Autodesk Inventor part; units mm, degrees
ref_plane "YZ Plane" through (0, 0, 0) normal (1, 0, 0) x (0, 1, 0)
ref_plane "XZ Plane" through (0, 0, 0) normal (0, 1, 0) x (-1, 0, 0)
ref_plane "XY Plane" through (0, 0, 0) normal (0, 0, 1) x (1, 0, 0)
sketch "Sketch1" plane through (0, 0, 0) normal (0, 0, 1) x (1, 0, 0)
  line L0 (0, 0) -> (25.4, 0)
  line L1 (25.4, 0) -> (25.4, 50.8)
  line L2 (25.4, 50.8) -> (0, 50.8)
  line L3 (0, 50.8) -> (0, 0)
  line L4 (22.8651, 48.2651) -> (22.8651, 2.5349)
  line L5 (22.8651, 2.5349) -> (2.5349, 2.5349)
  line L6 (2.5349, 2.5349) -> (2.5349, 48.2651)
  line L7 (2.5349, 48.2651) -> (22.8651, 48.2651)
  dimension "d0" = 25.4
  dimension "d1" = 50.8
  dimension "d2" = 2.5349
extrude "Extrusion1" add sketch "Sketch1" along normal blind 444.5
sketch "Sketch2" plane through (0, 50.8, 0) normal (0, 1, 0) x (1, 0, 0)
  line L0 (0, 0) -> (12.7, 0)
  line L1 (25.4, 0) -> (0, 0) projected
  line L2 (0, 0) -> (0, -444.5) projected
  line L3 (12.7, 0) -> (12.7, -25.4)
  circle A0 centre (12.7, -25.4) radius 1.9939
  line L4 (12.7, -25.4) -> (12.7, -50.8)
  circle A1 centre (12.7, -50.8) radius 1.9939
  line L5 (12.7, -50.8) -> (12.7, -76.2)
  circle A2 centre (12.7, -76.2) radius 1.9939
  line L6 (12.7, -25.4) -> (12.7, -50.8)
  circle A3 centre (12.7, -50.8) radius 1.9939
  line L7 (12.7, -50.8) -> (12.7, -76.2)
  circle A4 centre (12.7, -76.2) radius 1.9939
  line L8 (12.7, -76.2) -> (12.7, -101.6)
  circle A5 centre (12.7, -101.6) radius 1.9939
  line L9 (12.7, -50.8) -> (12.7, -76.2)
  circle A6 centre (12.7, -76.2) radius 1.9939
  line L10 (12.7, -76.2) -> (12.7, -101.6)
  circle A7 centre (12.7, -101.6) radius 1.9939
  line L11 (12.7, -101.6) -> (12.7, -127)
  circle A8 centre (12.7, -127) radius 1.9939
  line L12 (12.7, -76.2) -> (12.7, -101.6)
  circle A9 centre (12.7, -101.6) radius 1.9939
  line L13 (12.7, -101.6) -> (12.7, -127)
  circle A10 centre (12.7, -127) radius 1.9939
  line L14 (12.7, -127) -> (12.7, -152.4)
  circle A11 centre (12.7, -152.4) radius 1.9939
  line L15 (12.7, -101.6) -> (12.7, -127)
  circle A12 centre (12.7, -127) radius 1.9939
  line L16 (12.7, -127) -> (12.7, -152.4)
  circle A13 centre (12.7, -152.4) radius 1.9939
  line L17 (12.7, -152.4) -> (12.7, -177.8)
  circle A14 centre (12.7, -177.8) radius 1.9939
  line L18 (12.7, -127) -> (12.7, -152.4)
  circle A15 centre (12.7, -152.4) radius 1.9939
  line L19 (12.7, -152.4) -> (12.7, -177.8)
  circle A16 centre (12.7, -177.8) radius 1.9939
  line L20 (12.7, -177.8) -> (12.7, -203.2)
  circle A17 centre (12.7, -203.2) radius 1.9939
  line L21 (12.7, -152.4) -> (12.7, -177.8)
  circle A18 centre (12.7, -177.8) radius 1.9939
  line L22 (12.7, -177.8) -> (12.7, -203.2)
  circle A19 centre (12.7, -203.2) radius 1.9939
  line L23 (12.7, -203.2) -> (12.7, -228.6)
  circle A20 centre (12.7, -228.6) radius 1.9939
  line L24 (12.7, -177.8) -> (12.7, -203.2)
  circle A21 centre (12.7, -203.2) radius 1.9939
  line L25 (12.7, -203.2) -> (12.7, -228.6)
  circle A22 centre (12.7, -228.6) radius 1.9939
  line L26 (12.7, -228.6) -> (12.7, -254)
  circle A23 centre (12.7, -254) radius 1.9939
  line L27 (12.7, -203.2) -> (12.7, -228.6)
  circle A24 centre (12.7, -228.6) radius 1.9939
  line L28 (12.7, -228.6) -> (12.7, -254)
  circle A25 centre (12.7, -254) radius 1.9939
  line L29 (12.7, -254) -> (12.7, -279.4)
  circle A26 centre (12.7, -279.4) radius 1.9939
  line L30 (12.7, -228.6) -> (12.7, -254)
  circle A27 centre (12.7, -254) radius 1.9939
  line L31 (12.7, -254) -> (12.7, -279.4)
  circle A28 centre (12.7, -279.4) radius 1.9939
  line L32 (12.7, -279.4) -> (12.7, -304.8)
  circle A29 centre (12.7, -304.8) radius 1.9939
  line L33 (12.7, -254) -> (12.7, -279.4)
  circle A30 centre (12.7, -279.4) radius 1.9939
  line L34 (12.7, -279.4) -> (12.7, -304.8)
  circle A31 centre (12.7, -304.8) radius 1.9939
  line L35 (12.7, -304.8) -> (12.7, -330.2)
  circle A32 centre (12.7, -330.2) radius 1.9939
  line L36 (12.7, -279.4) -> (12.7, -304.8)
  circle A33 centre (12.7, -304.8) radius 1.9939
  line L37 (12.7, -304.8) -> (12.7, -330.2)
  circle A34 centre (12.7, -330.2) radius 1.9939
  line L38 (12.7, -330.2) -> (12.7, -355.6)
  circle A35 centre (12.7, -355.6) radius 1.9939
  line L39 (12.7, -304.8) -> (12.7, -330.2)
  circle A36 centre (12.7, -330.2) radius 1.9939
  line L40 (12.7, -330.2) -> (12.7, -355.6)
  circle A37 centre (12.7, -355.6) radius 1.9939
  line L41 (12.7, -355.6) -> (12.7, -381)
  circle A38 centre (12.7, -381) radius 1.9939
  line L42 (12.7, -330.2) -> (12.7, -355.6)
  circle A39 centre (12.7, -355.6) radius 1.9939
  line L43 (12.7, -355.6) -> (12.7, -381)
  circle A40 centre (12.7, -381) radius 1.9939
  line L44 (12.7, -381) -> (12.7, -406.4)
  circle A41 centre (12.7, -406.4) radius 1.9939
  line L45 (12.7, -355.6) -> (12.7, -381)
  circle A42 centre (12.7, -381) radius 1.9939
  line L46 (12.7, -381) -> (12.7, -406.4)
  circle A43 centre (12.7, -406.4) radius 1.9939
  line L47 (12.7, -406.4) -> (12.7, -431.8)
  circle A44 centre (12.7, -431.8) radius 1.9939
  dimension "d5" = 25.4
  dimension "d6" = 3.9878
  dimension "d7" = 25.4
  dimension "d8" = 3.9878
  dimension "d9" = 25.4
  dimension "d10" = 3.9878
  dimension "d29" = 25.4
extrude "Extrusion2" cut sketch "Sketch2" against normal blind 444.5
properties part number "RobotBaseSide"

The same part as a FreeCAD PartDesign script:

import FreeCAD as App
import Part
import Sketcher
from FreeCAD import Vector
Q = App.Units.Quantity


def add_polygon(sketch, points):
    """Adds a closed chain of lines whose ends are joined by coincident constraints."""
    first, n = sketch.GeometryCount, len(points)
    for a, b in zip(points, points[1:] + points[:1]):
        sketch.addGeometry(Part.LineSegment(App.Vector(*a, 0), App.Vector(*b, 0)), False)
    for i in range(n):
        sketch.addConstraint(Sketcher.Constraint("Coincident", first + i, 2, first + (i + 1) % n, 1))

doc = App.newDocument("Part")
body = doc.addObject("PartDesign::Body", "Body")

# Sketch on XY plane
sketch1 = body.newObject("Sketcher::SketchObject", "Sketch")
sketch1.AttachmentSupport = (doc.getObject("XY_Plane"), [""])
sketch1.MapMode = "FlatFace"
add_polygon(sketch1, [(0, 51), (0, 0), (25, 0), (25, 51)])  # lines 0-3
add_polygon(sketch1, [(3, 48), (23, 48), (23, 3), (3, 3)])  # lines 4-7
sketch1.addConstraint(Sketcher.Constraint("Vertical", 0))
sketch1.addConstraint(Sketcher.Constraint("Horizontal", 1))
sketch1.addConstraint(Sketcher.Constraint("Vertical", 2))
sketch1.addConstraint(Sketcher.Constraint("Horizontal", 3))
sketch1.addConstraint(Sketcher.Constraint("Horizontal", 4))
sketch1.addConstraint(Sketcher.Constraint("Vertical", 5))
sketch1.addConstraint(Sketcher.Constraint("Horizontal", 6))
sketch1.addConstraint(Sketcher.Constraint("Vertical", 7))
sketch1.addConstraint(Sketcher.Constraint("Coincident", 0, 2, -1, 1))
sketch1.addConstraint(Sketcher.Constraint("DistanceX", 1, 1, 1, 2, Q("1 in")))
sketch1.addConstraint(Sketcher.Constraint("DistanceY", 0, 2, 0, 1, Q("2 in")))
sketch1.addConstraint(Sketcher.Constraint("DistanceY", -1, 1, 5, 2, Q("0.0998 in")))
sketch1.addConstraint(Sketcher.Constraint("DistanceX", -1, 1, 6, 2, Q("0.0998 in")))
sketch1.addConstraint(Sketcher.Constraint("DistanceX", 4, 2, 2, 2, Q("0.0998 in")))
sketch1.addConstraint(Sketcher.Constraint("DistanceY", 4, 2, 2, 2, Q("0.0998 in")))
pad1 = body.newObject("PartDesign::Pad", "Pad")
pad1.Profile = sketch1
pad1.Length = Q("17.5 in")

# Sketch on XZ plane
sketch2 = body.newObject("Sketcher::SketchObject", "Sketch001")
sketch2.AttachmentSupport = (doc.getObject("XZ_Plane"), [""])
sketch2.MapMode = "FlatFace"
sketch2.AttachmentOffset = App.Placement(Vector(0, 0, -2 * 25.4), App.Rotation())
sketch2.addGeometry(Part.Circle(Vector(12.7, 25.4, 0), Vector(0, 0, 1), 2), False)
sketch2.addGeometry(Part.Circle(Vector(12.7, 431.8, 0), Vector(0, 0, 1), 2), False)
sketch2.addGeometry(Part.Circle(Vector(12.7, 406.4, 0), Vector(0, 0, 1), 2), False)
sketch2.addGeometry(Part.Circle(Vector(12.7, 381, 0), Vector(0, 0, 1), 2), False)
sketch2.addGeometry(Part.Circle(Vector(12.7, 355.6, 0), Vector(0, 0, 1), 2), False)
sketch2.addGeometry(Part.Circle(Vector(12.7, 330.2, 0), Vector(0, 0, 1), 2), False)
sketch2.addGeometry(Part.Circle(Vector(12.7, 304.8, 0), Vector(0, 0, 1), 2), False)
sketch2.addGeometry(Part.Circle(Vector(12.7, 279.4, 0), Vector(0, 0, 1), 2), False)
sketch2.addGeometry(Part.Circle(Vector(12.7, 254, 0), Vector(0, 0, 1), 2), False)
sketch2.addGeometry(Part.Circle(Vector(12.7, 228.6, 0), Vector(0, 0, 1), 2), False)
sketch2.addGeometry(Part.Circle(Vector(12.7, 203.2, 0), Vector(0, 0, 1), 2), False)
sketch2.addGeometry(Part.Circle(Vector(12.7, 177.8, 0), Vector(0, 0, 1), 2), False)
sketch2.addGeometry(Part.Circle(Vector(12.7, 152.4, 0), Vector(0, 0, 1), 2), False)
sketch2.addGeometry(Part.Circle(Vector(12.7, 127, 0), Vector(0, 0, 1), 2), False)
sketch2.addGeometry(Part.Circle(Vector(12.7, 101.6, 0), Vector(0, 0, 1), 2), False)
sketch2.addGeometry(Part.Circle(Vector(12.7, 76.2, 0), Vector(0, 0, 1), 2), False)
sketch2.addGeometry(Part.Circle(Vector(12.7, 50.8, 0), Vector(0, 0, 1), 2), False)
sketch2.addConstraint(Sketcher.Constraint("Equal", 0, 1))
sketch2.addConstraint(Sketcher.Constraint("Equal", 1, 2))
sketch2.addConstraint(Sketcher.Constraint("Equal", 2, 3))
sketch2.addConstraint(Sketcher.Constraint("Equal", 3, 4))
sketch2.addConstraint(Sketcher.Constraint("Equal", 4, 5))
sketch2.addConstraint(Sketcher.Constraint("Equal", 5, 6))
sketch2.addConstraint(Sketcher.Constraint("Equal", 6, 7))
sketch2.addConstraint(Sketcher.Constraint("Equal", 7, 8))
sketch2.addConstraint(Sketcher.Constraint("Equal", 8, 9))
sketch2.addConstraint(Sketcher.Constraint("Equal", 9, 10))
sketch2.addConstraint(Sketcher.Constraint("Equal", 10, 11))
sketch2.addConstraint(Sketcher.Constraint("Equal", 11, 12))
sketch2.addConstraint(Sketcher.Constraint("Equal", 12, 13))
sketch2.addConstraint(Sketcher.Constraint("Equal", 13, 14))
sketch2.addConstraint(Sketcher.Constraint("Equal", 14, 15))
sketch2.addConstraint(Sketcher.Constraint("Equal", 15, 16))
sketch2.addConstraint(Sketcher.Constraint("Vertical", 0, 3, 1, 3))
sketch2.addConstraint(Sketcher.Constraint("Vertical", 1, 3, 2, 3))
sketch2.addConstraint(Sketcher.Constraint("Vertical", 2, 3, 3, 3))
sketch2.addConstraint(Sketcher.Constraint("Vertical", 3, 3, 4, 3))
sketch2.addConstraint(Sketcher.Constraint("Vertical", 4, 3, 5, 3))
sketch2.addConstraint(Sketcher.Constraint("Vertical", 5, 3, 6, 3))
sketch2.addConstraint(Sketcher.Constraint("Vertical", 6, 3, 7, 3))
sketch2.addConstraint(Sketcher.Constraint("Vertical", 7, 3, 8, 3))
sketch2.addConstraint(Sketcher.Constraint("Vertical", 8, 3, 9, 3))
sketch2.addConstraint(Sketcher.Constraint("Vertical", 9, 3, 10, 3))
sketch2.addConstraint(Sketcher.Constraint("Vertical", 10, 3, 11, 3))
sketch2.addConstraint(Sketcher.Constraint("Vertical", 11, 3, 12, 3))
sketch2.addConstraint(Sketcher.Constraint("Vertical", 12, 3, 13, 3))
sketch2.addConstraint(Sketcher.Constraint("Vertical", 13, 3, 14, 3))
sketch2.addConstraint(Sketcher.Constraint("Vertical", 14, 3, 15, 3))
sketch2.addConstraint(Sketcher.Constraint("Vertical", 15, 3, 16, 3))
sketch2.addConstraint(Sketcher.Constraint("Diameter", 0, Q("0.157 in")))
sketch2.addConstraint(Sketcher.Constraint("DistanceY", -1, 1, 0, 3, Q("1 in")))
sketch2.addConstraint(Sketcher.Constraint("DistanceY", 2, 3, 1, 3, Q("1 in")))
sketch2.addConstraint(Sketcher.Constraint("DistanceY", 3, 3, 2, 3, Q("1 in")))
sketch2.addConstraint(Sketcher.Constraint("DistanceY", 4, 3, 3, 3, Q("1 in")))
sketch2.addConstraint(Sketcher.Constraint("DistanceY", 5, 3, 4, 3, Q("1 in")))
sketch2.addConstraint(Sketcher.Constraint("DistanceY", 6, 3, 5, 3, Q("1 in")))
sketch2.addConstraint(Sketcher.Constraint("DistanceY", 7, 3, 6, 3, Q("1 in")))
sketch2.addConstraint(Sketcher.Constraint("DistanceY", 8, 3, 7, 3, Q("1 in")))
sketch2.addConstraint(Sketcher.Constraint("DistanceY", 9, 3, 8, 3, Q("1 in")))
sketch2.addConstraint(Sketcher.Constraint("DistanceY", 10, 3, 9, 3, Q("1 in")))
sketch2.addConstraint(Sketcher.Constraint("DistanceY", 11, 3, 10, 3, Q("1 in")))
sketch2.addConstraint(Sketcher.Constraint("DistanceY", 12, 3, 11, 3, Q("1 in")))
sketch2.addConstraint(Sketcher.Constraint("DistanceY", 13, 3, 12, 3, Q("1 in")))
sketch2.addConstraint(Sketcher.Constraint("DistanceY", 14, 3, 13, 3, Q("1 in")))
sketch2.addConstraint(Sketcher.Constraint("DistanceY", 15, 3, 14, 3, Q("1 in")))
sketch2.addConstraint(Sketcher.Constraint("DistanceY", 0, 3, 16, 3, Q("1 in")))
sketch2.addConstraint(Sketcher.Constraint("DistanceY", 16, 3, 15, 3, Q("1 in")))
sketch2.addConstraint(Sketcher.Constraint("DistanceX", -1, 1, 0, 3, Q("0.5 in")))
pocket1 = body.newObject("PartDesign::Pocket", "Pocket")
pocket1.Profile = sketch2
pocket1.Length = Q("17.5 in")
pocket1.Reversed = True

doc.recompute()
